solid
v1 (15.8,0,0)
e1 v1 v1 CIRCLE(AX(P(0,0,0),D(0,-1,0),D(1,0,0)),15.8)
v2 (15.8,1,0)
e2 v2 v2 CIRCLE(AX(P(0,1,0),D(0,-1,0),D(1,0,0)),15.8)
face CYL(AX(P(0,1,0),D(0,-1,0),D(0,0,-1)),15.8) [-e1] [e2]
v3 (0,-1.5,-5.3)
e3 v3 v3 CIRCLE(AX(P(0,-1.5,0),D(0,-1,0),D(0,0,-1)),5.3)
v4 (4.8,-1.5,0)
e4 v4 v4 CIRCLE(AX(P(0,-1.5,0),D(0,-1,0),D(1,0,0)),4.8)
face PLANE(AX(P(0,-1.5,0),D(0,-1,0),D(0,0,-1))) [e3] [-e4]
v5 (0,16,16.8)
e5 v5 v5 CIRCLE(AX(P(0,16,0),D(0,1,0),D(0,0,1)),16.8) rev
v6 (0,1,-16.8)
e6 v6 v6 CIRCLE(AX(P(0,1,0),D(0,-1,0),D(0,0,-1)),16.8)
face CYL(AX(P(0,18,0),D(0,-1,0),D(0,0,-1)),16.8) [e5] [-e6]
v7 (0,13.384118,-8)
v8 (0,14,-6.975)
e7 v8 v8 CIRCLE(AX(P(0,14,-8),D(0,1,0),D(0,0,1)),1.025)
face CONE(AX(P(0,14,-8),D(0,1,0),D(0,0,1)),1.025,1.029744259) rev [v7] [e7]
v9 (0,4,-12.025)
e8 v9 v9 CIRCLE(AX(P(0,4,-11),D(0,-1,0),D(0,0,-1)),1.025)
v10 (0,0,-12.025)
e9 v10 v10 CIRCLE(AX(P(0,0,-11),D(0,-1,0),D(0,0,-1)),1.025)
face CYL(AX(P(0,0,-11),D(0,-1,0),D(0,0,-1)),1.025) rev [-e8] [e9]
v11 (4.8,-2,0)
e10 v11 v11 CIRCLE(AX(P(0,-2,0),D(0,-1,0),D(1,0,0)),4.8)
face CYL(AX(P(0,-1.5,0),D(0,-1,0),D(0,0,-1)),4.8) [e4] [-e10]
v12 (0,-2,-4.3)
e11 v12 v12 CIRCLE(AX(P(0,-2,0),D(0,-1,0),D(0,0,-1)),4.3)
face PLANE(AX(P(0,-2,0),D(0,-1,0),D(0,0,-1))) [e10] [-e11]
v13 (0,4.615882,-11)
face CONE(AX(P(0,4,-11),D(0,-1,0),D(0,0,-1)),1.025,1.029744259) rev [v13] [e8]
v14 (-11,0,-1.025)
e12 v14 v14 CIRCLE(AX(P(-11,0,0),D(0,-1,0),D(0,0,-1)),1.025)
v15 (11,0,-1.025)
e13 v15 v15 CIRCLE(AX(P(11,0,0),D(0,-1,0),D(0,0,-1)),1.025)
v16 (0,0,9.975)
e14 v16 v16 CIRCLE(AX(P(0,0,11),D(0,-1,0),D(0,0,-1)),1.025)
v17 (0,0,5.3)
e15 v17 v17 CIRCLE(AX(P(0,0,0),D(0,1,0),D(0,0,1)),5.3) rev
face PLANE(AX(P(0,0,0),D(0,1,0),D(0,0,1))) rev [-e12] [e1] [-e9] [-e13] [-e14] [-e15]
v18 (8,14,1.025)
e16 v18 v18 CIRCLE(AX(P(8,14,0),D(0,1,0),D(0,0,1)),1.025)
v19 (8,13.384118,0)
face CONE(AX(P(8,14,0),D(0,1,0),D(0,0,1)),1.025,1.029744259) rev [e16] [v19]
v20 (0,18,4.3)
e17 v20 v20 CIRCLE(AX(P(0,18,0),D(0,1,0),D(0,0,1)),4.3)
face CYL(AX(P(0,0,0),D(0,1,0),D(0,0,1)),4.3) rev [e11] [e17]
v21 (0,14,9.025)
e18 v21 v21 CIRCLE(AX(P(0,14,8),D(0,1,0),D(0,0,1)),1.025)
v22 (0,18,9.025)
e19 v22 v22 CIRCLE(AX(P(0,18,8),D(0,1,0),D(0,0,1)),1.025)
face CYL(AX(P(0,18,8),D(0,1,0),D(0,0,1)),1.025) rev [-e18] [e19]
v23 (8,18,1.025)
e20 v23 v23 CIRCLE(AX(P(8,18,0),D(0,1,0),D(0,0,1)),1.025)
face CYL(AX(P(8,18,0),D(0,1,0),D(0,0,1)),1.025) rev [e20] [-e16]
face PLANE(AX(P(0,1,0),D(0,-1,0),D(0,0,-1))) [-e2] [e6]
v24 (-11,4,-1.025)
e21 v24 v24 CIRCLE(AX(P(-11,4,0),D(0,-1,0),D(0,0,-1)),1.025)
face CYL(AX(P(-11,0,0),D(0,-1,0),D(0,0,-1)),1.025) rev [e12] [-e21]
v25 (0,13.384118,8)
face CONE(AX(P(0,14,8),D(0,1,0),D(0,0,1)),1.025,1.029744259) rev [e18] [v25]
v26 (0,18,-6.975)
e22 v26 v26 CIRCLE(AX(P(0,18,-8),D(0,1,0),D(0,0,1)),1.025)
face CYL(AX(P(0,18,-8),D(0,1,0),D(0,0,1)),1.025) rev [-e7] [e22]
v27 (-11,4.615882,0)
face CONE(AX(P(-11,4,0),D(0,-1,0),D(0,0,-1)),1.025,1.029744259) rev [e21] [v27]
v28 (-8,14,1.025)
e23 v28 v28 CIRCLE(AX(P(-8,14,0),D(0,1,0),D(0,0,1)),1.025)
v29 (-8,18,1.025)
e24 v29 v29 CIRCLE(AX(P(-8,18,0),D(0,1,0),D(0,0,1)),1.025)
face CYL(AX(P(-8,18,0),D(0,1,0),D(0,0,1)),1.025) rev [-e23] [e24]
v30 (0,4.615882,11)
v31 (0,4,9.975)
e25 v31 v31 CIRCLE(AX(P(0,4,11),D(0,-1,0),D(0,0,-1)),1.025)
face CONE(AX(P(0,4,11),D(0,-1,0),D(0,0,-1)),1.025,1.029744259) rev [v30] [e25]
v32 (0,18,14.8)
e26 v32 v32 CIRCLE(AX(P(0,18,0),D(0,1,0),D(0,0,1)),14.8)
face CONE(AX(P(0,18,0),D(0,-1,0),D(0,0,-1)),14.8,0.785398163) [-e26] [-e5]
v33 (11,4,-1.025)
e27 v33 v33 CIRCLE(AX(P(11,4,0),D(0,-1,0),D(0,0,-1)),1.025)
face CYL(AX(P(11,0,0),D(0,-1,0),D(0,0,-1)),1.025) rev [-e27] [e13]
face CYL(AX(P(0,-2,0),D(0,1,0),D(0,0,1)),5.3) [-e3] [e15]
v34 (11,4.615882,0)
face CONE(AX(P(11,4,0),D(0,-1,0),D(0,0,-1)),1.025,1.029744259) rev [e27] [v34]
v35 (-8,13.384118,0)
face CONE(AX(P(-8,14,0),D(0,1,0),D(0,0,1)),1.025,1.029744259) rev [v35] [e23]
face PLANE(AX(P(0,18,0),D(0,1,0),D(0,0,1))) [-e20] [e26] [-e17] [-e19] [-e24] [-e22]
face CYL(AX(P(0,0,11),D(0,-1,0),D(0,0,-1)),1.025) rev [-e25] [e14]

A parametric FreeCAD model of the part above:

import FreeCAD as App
import Part
import Sketcher
Q = App.Units.Quantity


def edges_at(feature, points):
    """Names of the edges that pass closest to the given points."""
    edges = feature.Shape.Edges
    near = lambda p: min(range(len(edges)), key=lambda i: edges[i].distToShape(Part.Vertex(*p))[0])
    return sorted({f"Edge{near(p) + 1}" for p in points})

doc = App.newDocument("Part")
params = doc.addObject("Spreadsheet::Sheet", "Params")
for row, (alias, value) in enumerate([
    ("sketch1_diameter", "33.6 mm"),
    ("pad1_length", "18 mm"),
    ("sketch2_diameter", "8.6 mm"),
    ("chamfer_size", "2 mm"),
    ("sketch3_width", "4 mm"),
    ("groove_angle", "360 deg"),
    ("sketch4_diameter", "10.6 mm"),
    ("sketch4_diameter2", "8.6 mm"),
    ("pad2_length", "2 mm"),
    ("sketch5_diameter", "10.6 mm"),
    ("sketch5_diameter2", "9.6 mm"),
    ("pocket2_length", "0.5 mm"),
    ("sketch6_diameter", "33.6 mm"),
    ("sketch6_diameter2", "31.6 mm"),
    ("pocket3_length", "1 mm"),
    ("sketch7_width", "4 mm"),
    ("groove2_angle", "360 deg"),
], start=1):
    params.set(f"A{row}", alias)
    params.set(f"B{row}", "=" + value)
    params.setAlias(f"B{row}", alias)

body = doc.addObject("PartDesign::Body", "Body")

# Sketch on XZ plane
sketch1 = doc.addObject("Sketcher::SketchObject", "Sketch")
body.addObject(sketch1)
sketch1.AttachmentSupport = (doc.XZ_Plane, [""])
sketch1.MapMode = "FlatFace"
sketch1.addGeometry(Part.Circle(App.Vector(0, 0, 0), App.Vector(0, 0, 1), 17), False)
sketch1.addConstraint(Sketcher.Constraint("Coincident", 0, 3, -1, 1))
sketch1.addConstraint(Sketcher.Constraint("Diameter", 0, Q("33.6 mm")))
sketch1.setExpression("Constraints[1]", "Params.sketch1_diameter")
pad1 = doc.addObject("PartDesign::Pad", "Pad")
body.addObject(pad1)
pad1.Profile = sketch1
pad1.setExpression("Length", "Params.pad1_length")
pad1.Reversed = True

# Sketch on XZ plane
sketch2 = doc.addObject("Sketcher::SketchObject", "Sketch001")
body.addObject(sketch2)
sketch2.AttachmentSupport = (doc.XZ_Plane, [""])
sketch2.MapMode = "FlatFace"
sketch2.AttachmentOffset = App.Placement(App.Vector(0, 0, -18), App.Rotation())
sketch2.addGeometry(Part.Circle(App.Vector(0, 0, 0), App.Vector(0, 0, 1), 4.3), False)
sketch2.addConstraint(Sketcher.Constraint("Coincident", 0, 3, -1, 1))
sketch2.addConstraint(Sketcher.Constraint("Diameter", 0, Q("8.6 mm")))
sketch2.setExpression("Constraints[1]", "Params.sketch2_diameter")
pocket1 = doc.addObject("PartDesign::Pocket", "Pocket")
body.addObject(pocket1)
pocket1.Profile = sketch2
pocket1.Type = "ThroughAll"
pocket1.Reversed = True
doc.recompute()

chamfer = doc.addObject("PartDesign::Chamfer", "Chamfer")
body.addObject(chamfer)
chamfer.Base = (pocket1, edges_at(pocket1, [(-16.8, 18, 0)]))
chamfer.setExpression("Size", "Params.chamfer_size")

# Sketch on YZ plane
sketch3 = doc.addObject("Sketcher::SketchObject", "Sketch002")
body.addObject(sketch3)
sketch3.AttachmentSupport = (doc.YZ_Plane, [""])
sketch3.MapMode = "FlatFace"
sketch3.addGeometry(Part.LineSegment(App.Vector(13.4, -8, 0), App.Vector(18, -8, 0)), False)
sketch3.addGeometry(Part.LineSegment(App.Vector(18, -8, 0), App.Vector(18, -7, 0)), False)
sketch3.addGeometry(Part.LineSegment(App.Vector(18, -7, 0), App.Vector(14, -7, 0)), False)
sketch3.addGeometry(Part.LineSegment(App.Vector(14, -7, 0), App.Vector(13.4, -8, 0)), False)
sketch3.addGeometry(Part.LineSegment(App.Vector(18, -8, 0), App.Vector(13.4, -8, 0)), True)  # axis
sketch3.addConstraint(Sketcher.Constraint("Coincident", 0, 2, 1, 1))
sketch3.addConstraint(Sketcher.Constraint("Coincident", 1, 2, 2, 1))
sketch3.addConstraint(Sketcher.Constraint("Coincident", 2, 2, 3, 1))
sketch3.addConstraint(Sketcher.Constraint("Coincident", 3, 2, 0, 1))
sketch3.addConstraint(Sketcher.Constraint("Horizontal", 0))
sketch3.addConstraint(Sketcher.Constraint("Vertical", 1))
sketch3.addConstraint(Sketcher.Constraint("Horizontal", 2))
sketch3.addConstraint(Sketcher.Constraint("Horizontal", 4))
sketch3.addConstraint(Sketcher.Constraint("Coincident", 4, 1, 0, 2))
sketch3.addConstraint(Sketcher.Constraint("Equal", 0, 4))
sketch3.addConstraint(Sketcher.Constraint("DistanceX", 2, 2, 2, 1, Q("4 mm")))
sketch3.addConstraint(Sketcher.Constraint("Angle", 3, Q("-121 deg")))
sketch3.addConstraint(Sketcher.Constraint("DistanceX", -1, 1, 0, 2, Q("18 mm")))
sketch3.addConstraint(Sketcher.Constraint("DistanceY", 0, 2, -1, 1, Q("8 mm")))
sketch3.addConstraint(Sketcher.Constraint("DistanceY", 1, 1, 1, 2, Q("1.025 mm")))
sketch3.setExpression("Constraints[10]", "Params.sketch3_width")
groove = doc.addObject("PartDesign::Groove", "Groove")
body.addObject(groove)
groove.Profile = sketch3
groove.ReferenceAxis = (sketch3, ["Axis0"])
groove.setExpression("Angle", "Params.groove_angle")
doc.recompute()

polarpattern = doc.addObject("PartDesign::PolarPattern", "PolarPattern")
body.addObject(polarpattern)
polarpattern.Originals = [groove]
polarpattern.Axis = (doc.Y_Axis, [""])
polarpattern.Angle = 360
polarpattern.Occurrences = 4
body.Tip = polarpattern

# Sketch on XZ plane
sketch4 = doc.addObject("Sketcher::SketchObject", "Sketch003")
body.addObject(sketch4)
sketch4.AttachmentSupport = (doc.XZ_Plane, [""])
sketch4.MapMode = "FlatFace"
sketch4.addGeometry(Part.Circle(App.Vector(0, 0, 0), App.Vector(0, 0, 1), 5.3), False)
sketch4.addGeometry(Part.Circle(App.Vector(0, 0, 0), App.Vector(0, 0, 1), 4.3), False)
sketch4.addConstraint(Sketcher.Constraint("Coincident", 0, 3, -1, 1))
sketch4.addConstraint(Sketcher.Constraint("Coincident", 1, 3, -1, 1))
sketch4.addConstraint(Sketcher.Constraint("Diameter", 0, Q("10.6 mm")))
sketch4.addConstraint(Sketcher.Constraint("Diameter", 1, Q("8.6 mm")))
sketch4.setExpression("Constraints[2]", "Params.sketch4_diameter")
sketch4.setExpression("Constraints[3]", "Params.sketch4_diameter2")
pad2 = doc.addObject("PartDesign::Pad", "Pad001")
body.addObject(pad2)
pad2.Profile = sketch4
pad2.setExpression("Length", "Params.pad2_length")

# Sketch on XZ plane
sketch5 = doc.addObject("Sketcher::SketchObject", "Sketch004")
body.addObject(sketch5)
sketch5.AttachmentSupport = (doc.XZ_Plane, [""])
sketch5.MapMode = "FlatFace"
sketch5.AttachmentOffset = App.Placement(App.Vector(0, 0, 2), App.Rotation())
sketch5.addGeometry(Part.Circle(App.Vector(0, 0, 0), App.Vector(0, 0, 1), 5.3), False)
sketch5.addGeometry(Part.Circle(App.Vector(0, 0, 0), App.Vector(0, 0, 1), 4.8), False)
sketch5.addConstraint(Sketcher.Constraint("Coincident", 0, 3, -1, 1))
sketch5.addConstraint(Sketcher.Constraint("Coincident", 1, 3, -1, 1))
sketch5.addConstraint(Sketcher.Constraint("Diameter", 0, Q("10.6 mm")))
sketch5.addConstraint(Sketcher.Constraint("Diameter", 1, Q("9.6 mm")))
sketch5.setExpression("Constraints[2]", "Params.sketch5_diameter")
sketch5.setExpression("Constraints[3]", "Params.sketch5_diameter2")
pocket2 = doc.addObject("PartDesign::Pocket", "Pocket001")
body.addObject(pocket2)
pocket2.Profile = sketch5
pocket2.setExpression("Length", "Params.pocket2_length")

# Sketch on XZ plane
sketch6 = doc.addObject("Sketcher::SketchObject", "Sketch005")
body.addObject(sketch6)
sketch6.AttachmentSupport = (doc.XZ_Plane, [""])
sketch6.MapMode = "FlatFace"
sketch6.addGeometry(Part.Circle(App.Vector(0, 0, 0), App.Vector(0, 0, 1), 17), False)
sketch6.addGeometry(Part.Circle(App.Vector(0, 0, 0), App.Vector(0, 0, 1), 16), False)
sketch6.addConstraint(Sketcher.Constraint("Coincident", 0, 3, -1, 1))
sketch6.addConstraint(Sketcher.Constraint("Coincident", 1, 3, -1, 1))
sketch6.addConstraint(Sketcher.Constraint("Diameter", 0, Q("33.6 mm")))
sketch6.addConstraint(Sketcher.Constraint("Diameter", 1, Q("31.6 mm")))
sketch6.setExpression("Constraints[2]", "Params.sketch6_diameter")
sketch6.setExpression("Constraints[3]", "Params.sketch6_diameter2")
pocket3 = doc.addObject("PartDesign::Pocket", "Pocket002")
body.addObject(pocket3)
pocket3.Profile = sketch6
pocket3.setExpression("Length", "Params.pocket3_length")

# Sketch on YZ plane
sketch7 = doc.addObject("Sketcher::SketchObject", "Sketch006")
body.addObject(sketch7)
sketch7.AttachmentSupport = (doc.YZ_Plane, [""])
sketch7.MapMode = "FlatFace"
sketch7.AttachmentOffset = App.Placement(App.Vector(0, 0, 11), App.Rotation())
sketch7.addGeometry(Part.LineSegment(App.Vector(4.6, 0, 0), App.Vector(0, 0, 0)), False)
sketch7.addGeometry(Part.LineSegment(App.Vector(0, 0, 0), App.Vector(0, -1, 0)), False)
sketch7.addGeometry(Part.LineSegment(App.Vector(0, -1, 0), App.Vector(4, -1, 0)), False)
sketch7.addGeometry(Part.LineSegment(App.Vector(4, -1, 0), App.Vector(4.6, 0, 0)), False)
sketch7.addConstraint(Sketcher.Constraint("Coincident", 0, 2, 1, 1))
sketch7.addConstraint(Sketcher.Constraint("Coincident", 1, 2, 2, 1))
sketch7.addConstraint(Sketcher.Constraint("Coincident", 2, 2, 3, 1))
sketch7.addConstraint(Sketcher.Constraint("Coincident", 3, 2, 0, 1))
sketch7.addConstraint(Sketcher.Constraint("Horizontal", 0))
sketch7.addConstraint(Sketcher.Constraint("Vertical", 1))
sketch7.addConstraint(Sketcher.Constraint("Horizontal", 2))
sketch7.addConstraint(Sketcher.Constraint("Coincident", 0, 2, -1, 1))
sketch7.addConstraint(Sketcher.Constraint("DistanceX", 2, 1, 2, 2, Q("4 mm")))
sketch7.addConstraint(Sketcher.Constraint("Angle", 3, Q("59 deg")))
sketch7.addConstraint(Sketcher.Constraint("DistanceY", 1, 2, 1, 1, Q("1.025 mm")))
sketch7.setExpression("Constraints[8]", "Params.sketch7_width")
groove2 = doc.addObject("PartDesign::Groove", "Groove001")
body.addObject(groove2)
groove2.Profile = sketch7
groove2.ReferenceAxis = (sketch7, ["H_Axis"])
groove2.setExpression("Angle", "Params.groove2_angle")
doc.recompute()

polarpattern2 = doc.addObject("PartDesign::PolarPattern", "PolarPattern001")
body.addObject(polarpattern2)
polarpattern2.Originals = [groove2]
polarpattern2.Axis = (doc.Y_Axis, [""])
polarpattern2.Angle = 360
polarpattern2.Occurrences = 4
body.Tip = polarpattern2

doc.recompute()
